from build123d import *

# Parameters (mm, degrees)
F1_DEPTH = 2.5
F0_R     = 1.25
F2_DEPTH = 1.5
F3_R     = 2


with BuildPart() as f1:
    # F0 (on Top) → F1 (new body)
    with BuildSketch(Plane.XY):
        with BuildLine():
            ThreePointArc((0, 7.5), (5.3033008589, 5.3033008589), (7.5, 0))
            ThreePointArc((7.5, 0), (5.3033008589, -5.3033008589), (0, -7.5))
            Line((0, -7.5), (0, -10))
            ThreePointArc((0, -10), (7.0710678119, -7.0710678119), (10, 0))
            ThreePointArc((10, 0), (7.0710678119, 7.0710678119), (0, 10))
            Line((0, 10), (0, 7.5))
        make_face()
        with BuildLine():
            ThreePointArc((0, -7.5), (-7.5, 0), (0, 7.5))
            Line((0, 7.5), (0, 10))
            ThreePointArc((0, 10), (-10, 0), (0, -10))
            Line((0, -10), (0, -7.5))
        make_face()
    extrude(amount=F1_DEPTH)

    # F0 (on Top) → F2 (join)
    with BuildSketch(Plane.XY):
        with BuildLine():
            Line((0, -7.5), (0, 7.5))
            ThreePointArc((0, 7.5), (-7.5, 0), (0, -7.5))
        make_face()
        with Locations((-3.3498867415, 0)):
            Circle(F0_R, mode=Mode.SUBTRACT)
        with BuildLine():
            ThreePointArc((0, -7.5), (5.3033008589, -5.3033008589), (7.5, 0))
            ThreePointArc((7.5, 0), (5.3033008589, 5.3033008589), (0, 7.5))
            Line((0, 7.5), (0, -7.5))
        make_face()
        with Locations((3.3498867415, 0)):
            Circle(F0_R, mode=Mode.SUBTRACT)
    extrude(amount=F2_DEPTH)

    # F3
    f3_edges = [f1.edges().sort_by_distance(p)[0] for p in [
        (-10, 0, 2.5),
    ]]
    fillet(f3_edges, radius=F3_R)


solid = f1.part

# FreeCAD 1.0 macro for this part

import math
import FreeCAD as App
import Part
import Sketcher
Q = App.Units.Quantity


def edges_at(feature, points):
    """Names of the edges that pass closest to the given points."""
    edges = feature.Shape.Edges
    near = lambda p: min(range(len(edges)), key=lambda i: edges[i].distToShape(Part.Vertex(*p))[0])
    return sorted({f"Edge{near(p) + 1}" for p in points})

doc = App.newDocument("Part")
body = doc.addObject("PartDesign::Body", "Body")

sketch1 = body.newObject("Sketcher::SketchObject", "Sketch")
sketch1.AttachmentSupport = (doc.getObject("XY_Plane"), [""])
sketch1.MapMode = "FlatFace"
sketch1.addGeometry([
    Part.ArcOfCircle(Part.Circle(App.Vector(0, 0, 0), App.Vector(0, 0, 1), 10), math.radians(-90), math.radians(0)),
    Part.ArcOfCircle(Part.Circle(App.Vector(0, 0, 0), App.Vector(0, 0, 1), 10), math.radians(0), math.radians(90)),
    Part.ArcOfCircle(Part.Circle(App.Vector(0, 0, 0), App.Vector(0, 0, 1), 10), math.radians(90), math.radians(270)),
    Part.Circle(App.Vector(0, 0, 0), App.Vector(0, 0, 1), 8),
], False)
sketch1.addConstraint([
    Sketcher.Constraint("Tangent", 0, 2, 1, 1),
    Sketcher.Constraint("Tangent", 1, 2, 2, 1),
    Sketcher.Constraint("Tangent", 2, 2, 0, 1),
    Sketcher.Constraint("Coincident", 0, 3, -1, 1),
    Sketcher.Constraint("Coincident", 3, 3, -1, 1),
    Sketcher.Constraint("PointOnObject", 0, 2, -1),
    Sketcher.Constraint("PointOnObject", 1, 2, -2),
    Sketcher.Constraint("PointOnObject", 2, 2, -2),
    Sketcher.Constraint("Diameter", 3, Q("15 mm")),
    Sketcher.Constraint("Radius", 0, Q("10 mm")),
])
pad1 = body.newObject("PartDesign::Pad", "Pad")
pad1.Profile = sketch1
pad1.Length = 2.5

sketch2 = body.newObject("Sketcher::SketchObject", "Sketch001")
sketch2.AttachmentSupport = (doc.getObject("XY_Plane"), [""])
sketch2.MapMode = "FlatFace"
sketch2.addGeometry([
    Part.Circle(App.Vector(0, 0, 0), App.Vector(0, 0, 1), 7.5),
    Part.Circle(App.Vector(-3.3, 0, 0), App.Vector(0, 0, 1), 1.2),
    Part.Circle(App.Vector(3.3, 0, 0), App.Vector(0, 0, 1), 1.2),
], False)
sketch2.addConstraint([
    Sketcher.Constraint("Coincident", 0, 3, -1, 1),
    Sketcher.Constraint("Equal", 1, 2),
    Sketcher.Constraint("Symmetric", 1, 3, 2, 3, -1, 1),
    Sketcher.Constraint("PointOnObject", 1, 3, -1),
    Sketcher.Constraint("Diameter", 0, Q("15 mm")),
    Sketcher.Constraint("Diameter", 1, Q("2.5 mm")),
    Sketcher.Constraint("DistanceX", 1, 3, -1, 1, Q("3.349887 mm")),
])
pad2 = body.newObject("PartDesign::Pad", "Pad001")
pad2.Profile = sketch2
pad2.Length = 1.5
doc.recompute()

fillet = body.newObject("PartDesign::Fillet", "Fillet")
fillet.Base = (pad2, edges_at(pad2, [(-10, 0, 2.5)]))
fillet.Radius = 2

doc.recompute()
